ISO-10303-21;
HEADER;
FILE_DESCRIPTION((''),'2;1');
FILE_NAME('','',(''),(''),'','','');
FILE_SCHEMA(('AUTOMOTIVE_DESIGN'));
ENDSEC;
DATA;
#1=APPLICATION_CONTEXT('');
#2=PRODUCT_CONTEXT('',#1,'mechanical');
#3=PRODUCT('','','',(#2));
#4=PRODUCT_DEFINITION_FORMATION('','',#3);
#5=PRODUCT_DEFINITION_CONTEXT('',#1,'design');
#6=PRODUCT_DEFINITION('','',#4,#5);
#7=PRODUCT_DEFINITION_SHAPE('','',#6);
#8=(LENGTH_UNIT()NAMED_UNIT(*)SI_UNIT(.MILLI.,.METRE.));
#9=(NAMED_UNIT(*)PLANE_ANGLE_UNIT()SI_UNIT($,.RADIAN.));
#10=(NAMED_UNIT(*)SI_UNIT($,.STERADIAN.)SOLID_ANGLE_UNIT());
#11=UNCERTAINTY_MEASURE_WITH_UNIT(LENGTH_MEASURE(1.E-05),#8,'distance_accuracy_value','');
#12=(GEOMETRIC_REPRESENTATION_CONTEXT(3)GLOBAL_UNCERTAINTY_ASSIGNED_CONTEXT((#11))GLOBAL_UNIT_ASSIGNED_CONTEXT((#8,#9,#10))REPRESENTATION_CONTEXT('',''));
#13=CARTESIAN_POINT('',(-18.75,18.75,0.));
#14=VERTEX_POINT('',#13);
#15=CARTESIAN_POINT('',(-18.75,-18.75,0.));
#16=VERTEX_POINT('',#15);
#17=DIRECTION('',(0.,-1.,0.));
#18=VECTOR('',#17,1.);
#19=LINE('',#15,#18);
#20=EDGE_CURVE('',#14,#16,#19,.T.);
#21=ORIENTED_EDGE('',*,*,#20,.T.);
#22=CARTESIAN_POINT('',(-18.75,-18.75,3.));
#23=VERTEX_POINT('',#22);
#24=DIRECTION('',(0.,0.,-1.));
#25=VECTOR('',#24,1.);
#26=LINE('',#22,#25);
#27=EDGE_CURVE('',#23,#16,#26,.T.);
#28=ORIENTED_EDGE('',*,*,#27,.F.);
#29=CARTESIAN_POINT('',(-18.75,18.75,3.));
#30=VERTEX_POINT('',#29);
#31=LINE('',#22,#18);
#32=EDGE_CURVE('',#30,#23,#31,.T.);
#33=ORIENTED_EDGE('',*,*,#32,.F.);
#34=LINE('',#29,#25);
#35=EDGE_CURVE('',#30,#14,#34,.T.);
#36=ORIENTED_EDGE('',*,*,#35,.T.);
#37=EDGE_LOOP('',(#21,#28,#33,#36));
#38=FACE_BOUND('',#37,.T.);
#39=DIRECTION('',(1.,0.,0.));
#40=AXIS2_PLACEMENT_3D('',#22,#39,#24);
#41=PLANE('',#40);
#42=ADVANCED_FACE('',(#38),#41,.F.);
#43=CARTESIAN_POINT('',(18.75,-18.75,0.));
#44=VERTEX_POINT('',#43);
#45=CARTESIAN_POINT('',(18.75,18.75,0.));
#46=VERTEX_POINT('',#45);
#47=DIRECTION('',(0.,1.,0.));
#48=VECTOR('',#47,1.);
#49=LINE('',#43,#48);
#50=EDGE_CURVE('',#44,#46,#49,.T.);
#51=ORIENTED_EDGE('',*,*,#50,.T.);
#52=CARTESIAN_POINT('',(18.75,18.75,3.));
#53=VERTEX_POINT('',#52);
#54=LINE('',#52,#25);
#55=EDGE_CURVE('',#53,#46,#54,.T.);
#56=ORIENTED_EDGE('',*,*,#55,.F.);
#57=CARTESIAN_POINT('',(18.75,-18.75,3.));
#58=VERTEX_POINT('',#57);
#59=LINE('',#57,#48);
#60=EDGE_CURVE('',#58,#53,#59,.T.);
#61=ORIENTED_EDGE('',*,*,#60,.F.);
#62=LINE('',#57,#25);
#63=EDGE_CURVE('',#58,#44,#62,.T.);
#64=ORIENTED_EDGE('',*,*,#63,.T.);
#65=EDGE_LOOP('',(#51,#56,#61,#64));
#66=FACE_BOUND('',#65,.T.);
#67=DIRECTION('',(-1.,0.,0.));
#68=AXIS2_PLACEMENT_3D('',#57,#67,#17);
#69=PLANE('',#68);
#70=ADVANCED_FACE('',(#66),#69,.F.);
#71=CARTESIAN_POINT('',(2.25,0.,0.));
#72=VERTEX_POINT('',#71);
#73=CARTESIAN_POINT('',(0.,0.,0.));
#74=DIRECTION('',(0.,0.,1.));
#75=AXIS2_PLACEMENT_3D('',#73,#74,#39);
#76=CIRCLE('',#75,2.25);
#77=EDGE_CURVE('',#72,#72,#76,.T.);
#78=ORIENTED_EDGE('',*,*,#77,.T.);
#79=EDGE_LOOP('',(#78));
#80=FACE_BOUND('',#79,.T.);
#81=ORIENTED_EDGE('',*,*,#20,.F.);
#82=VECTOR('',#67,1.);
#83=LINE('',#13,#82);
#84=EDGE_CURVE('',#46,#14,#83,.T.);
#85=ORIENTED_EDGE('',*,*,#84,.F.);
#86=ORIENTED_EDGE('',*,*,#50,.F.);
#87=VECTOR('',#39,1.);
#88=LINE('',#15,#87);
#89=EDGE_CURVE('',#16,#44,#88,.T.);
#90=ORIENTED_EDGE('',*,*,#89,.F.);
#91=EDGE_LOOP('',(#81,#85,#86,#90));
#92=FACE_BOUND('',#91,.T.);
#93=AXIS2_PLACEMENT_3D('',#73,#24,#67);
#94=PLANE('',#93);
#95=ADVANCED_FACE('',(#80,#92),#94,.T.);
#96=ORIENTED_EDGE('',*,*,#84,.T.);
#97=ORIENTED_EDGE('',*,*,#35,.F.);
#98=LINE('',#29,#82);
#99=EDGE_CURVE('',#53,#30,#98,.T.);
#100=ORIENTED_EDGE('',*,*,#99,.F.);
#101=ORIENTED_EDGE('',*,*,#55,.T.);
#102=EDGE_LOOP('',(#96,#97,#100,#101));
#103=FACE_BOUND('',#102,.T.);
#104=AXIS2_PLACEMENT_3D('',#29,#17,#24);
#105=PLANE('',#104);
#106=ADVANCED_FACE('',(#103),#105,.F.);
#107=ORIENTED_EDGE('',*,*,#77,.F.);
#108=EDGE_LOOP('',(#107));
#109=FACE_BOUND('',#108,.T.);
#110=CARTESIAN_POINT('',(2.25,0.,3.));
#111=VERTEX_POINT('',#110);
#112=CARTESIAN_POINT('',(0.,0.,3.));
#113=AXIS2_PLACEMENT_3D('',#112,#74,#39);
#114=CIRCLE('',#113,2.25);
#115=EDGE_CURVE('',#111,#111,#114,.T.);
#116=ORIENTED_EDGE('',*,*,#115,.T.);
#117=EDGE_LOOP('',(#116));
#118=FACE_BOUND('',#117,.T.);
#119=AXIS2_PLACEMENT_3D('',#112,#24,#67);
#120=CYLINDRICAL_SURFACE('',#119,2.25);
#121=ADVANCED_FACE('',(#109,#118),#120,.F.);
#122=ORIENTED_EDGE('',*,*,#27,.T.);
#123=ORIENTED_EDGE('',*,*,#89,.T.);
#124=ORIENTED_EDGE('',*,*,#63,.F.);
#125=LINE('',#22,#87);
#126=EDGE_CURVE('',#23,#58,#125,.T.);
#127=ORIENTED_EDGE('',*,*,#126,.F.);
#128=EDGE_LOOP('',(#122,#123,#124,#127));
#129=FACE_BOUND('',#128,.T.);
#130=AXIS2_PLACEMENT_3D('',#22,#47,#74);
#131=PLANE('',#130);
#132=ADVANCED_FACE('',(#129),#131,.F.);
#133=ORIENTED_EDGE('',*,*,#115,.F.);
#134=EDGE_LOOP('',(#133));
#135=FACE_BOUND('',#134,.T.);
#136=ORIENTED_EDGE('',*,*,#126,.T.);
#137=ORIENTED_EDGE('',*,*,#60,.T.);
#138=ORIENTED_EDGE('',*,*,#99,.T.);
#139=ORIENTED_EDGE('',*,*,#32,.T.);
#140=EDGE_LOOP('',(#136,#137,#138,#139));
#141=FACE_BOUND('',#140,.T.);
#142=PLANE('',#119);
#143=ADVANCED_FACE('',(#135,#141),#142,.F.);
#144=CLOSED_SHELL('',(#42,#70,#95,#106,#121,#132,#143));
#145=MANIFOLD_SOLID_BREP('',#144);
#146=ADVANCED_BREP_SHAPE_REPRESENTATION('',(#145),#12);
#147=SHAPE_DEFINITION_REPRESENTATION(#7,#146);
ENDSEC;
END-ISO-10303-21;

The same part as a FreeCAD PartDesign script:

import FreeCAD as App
import Part
import Sketcher
from FreeCAD import Vector


def add_polygon(sketch, points):
    """Adds a closed chain of lines whose ends are joined by coincident constraints."""
    first, n = sketch.GeometryCount, len(points)
    for a, b in zip(points, points[1:] + points[:1]):
        sketch.addGeometry(Part.LineSegment(App.Vector(*a, 0), App.Vector(*b, 0)), False)
    for i in range(n):
        sketch.addConstraint(Sketcher.Constraint("Coincident", first + i, 2, first + (i + 1) % n, 1))

doc = App.newDocument("Part")
params = doc.addObject("Spreadsheet::Sheet", "Params")
for row, (alias, value) in enumerate([
    ("sketch1_diameter", "4.5 mm"),
    ("sketch1_width", "37.5 mm"),
    ("pad1_length", "3 mm"),
], start=1):
    params.set(f"A{row}", alias)
    params.set(f"B{row}", "=" + value)
    params.setAlias(f"B{row}", alias)

body = doc.addObject("PartDesign::Body", "Body")

# Sketch on XY plane
sketch1 = body.newObject("Sketcher::SketchObject", "Sketch")
sketch1.AttachmentSupport = (doc.getObject("XY_Plane"), [""])
sketch1.MapMode = "FlatFace"
add_polygon(sketch1, [(-18.75, 18.75), (-18.75, -18.75), (18.75, -18.75), (18.75, 18.75)])  # lines 0-3
sketch1.addGeometry(Part.Circle(Vector(0, 0, 0), Vector(0, 0, 1), 2.25), False)  # 4
sketch1.addConstraint([
    Sketcher.Constraint("Vertical", 0),
    Sketcher.Constraint("Horizontal", 1),
    Sketcher.Constraint("Vertical", 2),
    Sketcher.Constraint("Horizontal", 3),
    Sketcher.Constraint("Coincident", 4, 3, -1, 1),
    Sketcher.Constraint("Symmetric", 0, 2, 2, 2, -1, 1),
    Sketcher.Constraint("Equal", 3, 0),
    Sketcher.Constraint("Diameter", 4, 4.5),
    Sketcher.Constraint("DistanceX", 1, 1, 1, 2, 37.5),
])
sketch1.setExpression("Constraints[11]", "Params.sketch1_diameter")
sketch1.setExpression("Constraints[12]", "Params.sketch1_width")
pad1 = body.newObject("PartDesign::Pad", "Pad")
pad1.Profile = sketch1
pad1.setExpression("Length", "Params.pad1_length")

doc.recompute()
